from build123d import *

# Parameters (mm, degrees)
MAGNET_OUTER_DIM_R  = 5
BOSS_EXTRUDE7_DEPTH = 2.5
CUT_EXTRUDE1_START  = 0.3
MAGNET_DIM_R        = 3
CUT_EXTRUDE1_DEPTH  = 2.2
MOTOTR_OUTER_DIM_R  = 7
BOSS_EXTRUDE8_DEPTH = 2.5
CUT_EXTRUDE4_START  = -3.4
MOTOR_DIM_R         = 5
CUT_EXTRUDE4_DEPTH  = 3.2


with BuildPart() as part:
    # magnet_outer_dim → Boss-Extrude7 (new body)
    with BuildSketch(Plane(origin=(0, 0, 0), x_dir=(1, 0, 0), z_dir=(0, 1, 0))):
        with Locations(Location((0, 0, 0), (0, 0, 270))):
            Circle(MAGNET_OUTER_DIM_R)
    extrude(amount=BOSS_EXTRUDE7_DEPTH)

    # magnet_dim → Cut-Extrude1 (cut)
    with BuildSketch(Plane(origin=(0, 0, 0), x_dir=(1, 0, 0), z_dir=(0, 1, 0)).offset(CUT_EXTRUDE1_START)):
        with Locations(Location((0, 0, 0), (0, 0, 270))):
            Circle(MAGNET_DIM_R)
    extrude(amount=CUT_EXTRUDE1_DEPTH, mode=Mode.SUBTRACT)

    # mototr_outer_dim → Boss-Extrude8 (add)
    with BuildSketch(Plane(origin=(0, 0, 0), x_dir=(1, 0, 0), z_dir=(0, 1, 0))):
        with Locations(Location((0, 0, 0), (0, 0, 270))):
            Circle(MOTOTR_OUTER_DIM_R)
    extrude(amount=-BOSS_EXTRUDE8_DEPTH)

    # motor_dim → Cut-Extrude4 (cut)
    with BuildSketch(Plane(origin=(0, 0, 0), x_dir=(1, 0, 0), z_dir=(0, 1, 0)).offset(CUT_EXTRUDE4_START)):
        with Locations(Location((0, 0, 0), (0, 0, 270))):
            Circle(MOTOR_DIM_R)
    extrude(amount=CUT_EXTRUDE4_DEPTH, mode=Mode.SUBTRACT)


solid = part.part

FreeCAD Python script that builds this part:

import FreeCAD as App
import Part
import Sketcher

V = App.Vector

doc = App.newDocument("Part")
body = doc.addObject("PartDesign::Body", "Body")

# Sketch on XZ plane
sketch1 = body.newObject("Sketcher::SketchObject", "Sketch")
sketch1.AttachmentSupport = (doc.getObject("XZ_Plane"), [""])
sketch1.MapMode = "FlatFace"
sketch1.addGeometry(Part.Circle(V(0, 0, 0), V(0, 0, 1), 5), False)
sketch1.addConstraint(Sketcher.Constraint("Coincident", 0, 3, -1, 1))
sketch1.addConstraint(Sketcher.Constraint("Diameter", 0, 10.0))
pad1 = body.newObject("PartDesign::Pad", "Pad")
pad1.Profile = sketch1
pad1.Length = 2.5
pad1.Reversed = True

# Sketch on XZ plane
sketch2 = body.newObject("Sketcher::SketchObject", "Sketch001")
sketch2.AttachmentSupport = (doc.getObject("XZ_Plane"), [""])
sketch2.MapMode = "FlatFace"
sketch2.AttachmentOffset = App.Placement(V(0, 0, -0.3), App.Rotation())
sketch2.addGeometry(Part.Circle(V(0, 0, 0), V(0, 0, 1), 3), False)
sketch2.addConstraint(Sketcher.Constraint("Coincident", 0, 3, -1, 1))
sketch2.addConstraint(Sketcher.Constraint("Diameter", 0, 6.0))
pocket1 = body.newObject("PartDesign::Pocket", "Pocket")
pocket1.Profile = sketch2
pocket1.Length = 2.2

# Sketch on XZ plane
sketch3 = body.newObject("Sketcher::SketchObject", "Sketch002")
sketch3.AttachmentSupport = (doc.getObject("XZ_Plane"), [""])
sketch3.MapMode = "FlatFace"
sketch3.addGeometry(Part.Circle(V(0, 0, 0), V(0, 0, 1), 7), False)
sketch3.addConstraint(Sketcher.Constraint("Coincident", 0, 3, -1, 1))
sketch3.addConstraint(Sketcher.Constraint("Diameter", 0, 14.0))
pad2 = body.newObject("PartDesign::Pad", "Pad001")
pad2.Profile = sketch3
pad2.Length = 2.5

# Sketch on XZ plane
sketch4 = body.newObject("Sketcher::SketchObject", "Sketch003")
sketch4.AttachmentSupport = (doc.getObject("XZ_Plane"), [""])
sketch4.MapMode = "FlatFace"
sketch4.AttachmentOffset = App.Placement(V(0, 0, 3.4), App.Rotation())
sketch4.addGeometry(Part.Circle(V(0, 0, 0), V(0, 0, 1), 5), False)
sketch4.addConstraint(Sketcher.Constraint("Coincident", 0, 3, -1, 1))
sketch4.addConstraint(Sketcher.Constraint("Diameter", 0, 10.0))
pocket2 = body.newObject("PartDesign::Pocket", "Pocket001")
pocket2.Profile = sketch4
pocket2.Length = 3.2

doc.recompute()
